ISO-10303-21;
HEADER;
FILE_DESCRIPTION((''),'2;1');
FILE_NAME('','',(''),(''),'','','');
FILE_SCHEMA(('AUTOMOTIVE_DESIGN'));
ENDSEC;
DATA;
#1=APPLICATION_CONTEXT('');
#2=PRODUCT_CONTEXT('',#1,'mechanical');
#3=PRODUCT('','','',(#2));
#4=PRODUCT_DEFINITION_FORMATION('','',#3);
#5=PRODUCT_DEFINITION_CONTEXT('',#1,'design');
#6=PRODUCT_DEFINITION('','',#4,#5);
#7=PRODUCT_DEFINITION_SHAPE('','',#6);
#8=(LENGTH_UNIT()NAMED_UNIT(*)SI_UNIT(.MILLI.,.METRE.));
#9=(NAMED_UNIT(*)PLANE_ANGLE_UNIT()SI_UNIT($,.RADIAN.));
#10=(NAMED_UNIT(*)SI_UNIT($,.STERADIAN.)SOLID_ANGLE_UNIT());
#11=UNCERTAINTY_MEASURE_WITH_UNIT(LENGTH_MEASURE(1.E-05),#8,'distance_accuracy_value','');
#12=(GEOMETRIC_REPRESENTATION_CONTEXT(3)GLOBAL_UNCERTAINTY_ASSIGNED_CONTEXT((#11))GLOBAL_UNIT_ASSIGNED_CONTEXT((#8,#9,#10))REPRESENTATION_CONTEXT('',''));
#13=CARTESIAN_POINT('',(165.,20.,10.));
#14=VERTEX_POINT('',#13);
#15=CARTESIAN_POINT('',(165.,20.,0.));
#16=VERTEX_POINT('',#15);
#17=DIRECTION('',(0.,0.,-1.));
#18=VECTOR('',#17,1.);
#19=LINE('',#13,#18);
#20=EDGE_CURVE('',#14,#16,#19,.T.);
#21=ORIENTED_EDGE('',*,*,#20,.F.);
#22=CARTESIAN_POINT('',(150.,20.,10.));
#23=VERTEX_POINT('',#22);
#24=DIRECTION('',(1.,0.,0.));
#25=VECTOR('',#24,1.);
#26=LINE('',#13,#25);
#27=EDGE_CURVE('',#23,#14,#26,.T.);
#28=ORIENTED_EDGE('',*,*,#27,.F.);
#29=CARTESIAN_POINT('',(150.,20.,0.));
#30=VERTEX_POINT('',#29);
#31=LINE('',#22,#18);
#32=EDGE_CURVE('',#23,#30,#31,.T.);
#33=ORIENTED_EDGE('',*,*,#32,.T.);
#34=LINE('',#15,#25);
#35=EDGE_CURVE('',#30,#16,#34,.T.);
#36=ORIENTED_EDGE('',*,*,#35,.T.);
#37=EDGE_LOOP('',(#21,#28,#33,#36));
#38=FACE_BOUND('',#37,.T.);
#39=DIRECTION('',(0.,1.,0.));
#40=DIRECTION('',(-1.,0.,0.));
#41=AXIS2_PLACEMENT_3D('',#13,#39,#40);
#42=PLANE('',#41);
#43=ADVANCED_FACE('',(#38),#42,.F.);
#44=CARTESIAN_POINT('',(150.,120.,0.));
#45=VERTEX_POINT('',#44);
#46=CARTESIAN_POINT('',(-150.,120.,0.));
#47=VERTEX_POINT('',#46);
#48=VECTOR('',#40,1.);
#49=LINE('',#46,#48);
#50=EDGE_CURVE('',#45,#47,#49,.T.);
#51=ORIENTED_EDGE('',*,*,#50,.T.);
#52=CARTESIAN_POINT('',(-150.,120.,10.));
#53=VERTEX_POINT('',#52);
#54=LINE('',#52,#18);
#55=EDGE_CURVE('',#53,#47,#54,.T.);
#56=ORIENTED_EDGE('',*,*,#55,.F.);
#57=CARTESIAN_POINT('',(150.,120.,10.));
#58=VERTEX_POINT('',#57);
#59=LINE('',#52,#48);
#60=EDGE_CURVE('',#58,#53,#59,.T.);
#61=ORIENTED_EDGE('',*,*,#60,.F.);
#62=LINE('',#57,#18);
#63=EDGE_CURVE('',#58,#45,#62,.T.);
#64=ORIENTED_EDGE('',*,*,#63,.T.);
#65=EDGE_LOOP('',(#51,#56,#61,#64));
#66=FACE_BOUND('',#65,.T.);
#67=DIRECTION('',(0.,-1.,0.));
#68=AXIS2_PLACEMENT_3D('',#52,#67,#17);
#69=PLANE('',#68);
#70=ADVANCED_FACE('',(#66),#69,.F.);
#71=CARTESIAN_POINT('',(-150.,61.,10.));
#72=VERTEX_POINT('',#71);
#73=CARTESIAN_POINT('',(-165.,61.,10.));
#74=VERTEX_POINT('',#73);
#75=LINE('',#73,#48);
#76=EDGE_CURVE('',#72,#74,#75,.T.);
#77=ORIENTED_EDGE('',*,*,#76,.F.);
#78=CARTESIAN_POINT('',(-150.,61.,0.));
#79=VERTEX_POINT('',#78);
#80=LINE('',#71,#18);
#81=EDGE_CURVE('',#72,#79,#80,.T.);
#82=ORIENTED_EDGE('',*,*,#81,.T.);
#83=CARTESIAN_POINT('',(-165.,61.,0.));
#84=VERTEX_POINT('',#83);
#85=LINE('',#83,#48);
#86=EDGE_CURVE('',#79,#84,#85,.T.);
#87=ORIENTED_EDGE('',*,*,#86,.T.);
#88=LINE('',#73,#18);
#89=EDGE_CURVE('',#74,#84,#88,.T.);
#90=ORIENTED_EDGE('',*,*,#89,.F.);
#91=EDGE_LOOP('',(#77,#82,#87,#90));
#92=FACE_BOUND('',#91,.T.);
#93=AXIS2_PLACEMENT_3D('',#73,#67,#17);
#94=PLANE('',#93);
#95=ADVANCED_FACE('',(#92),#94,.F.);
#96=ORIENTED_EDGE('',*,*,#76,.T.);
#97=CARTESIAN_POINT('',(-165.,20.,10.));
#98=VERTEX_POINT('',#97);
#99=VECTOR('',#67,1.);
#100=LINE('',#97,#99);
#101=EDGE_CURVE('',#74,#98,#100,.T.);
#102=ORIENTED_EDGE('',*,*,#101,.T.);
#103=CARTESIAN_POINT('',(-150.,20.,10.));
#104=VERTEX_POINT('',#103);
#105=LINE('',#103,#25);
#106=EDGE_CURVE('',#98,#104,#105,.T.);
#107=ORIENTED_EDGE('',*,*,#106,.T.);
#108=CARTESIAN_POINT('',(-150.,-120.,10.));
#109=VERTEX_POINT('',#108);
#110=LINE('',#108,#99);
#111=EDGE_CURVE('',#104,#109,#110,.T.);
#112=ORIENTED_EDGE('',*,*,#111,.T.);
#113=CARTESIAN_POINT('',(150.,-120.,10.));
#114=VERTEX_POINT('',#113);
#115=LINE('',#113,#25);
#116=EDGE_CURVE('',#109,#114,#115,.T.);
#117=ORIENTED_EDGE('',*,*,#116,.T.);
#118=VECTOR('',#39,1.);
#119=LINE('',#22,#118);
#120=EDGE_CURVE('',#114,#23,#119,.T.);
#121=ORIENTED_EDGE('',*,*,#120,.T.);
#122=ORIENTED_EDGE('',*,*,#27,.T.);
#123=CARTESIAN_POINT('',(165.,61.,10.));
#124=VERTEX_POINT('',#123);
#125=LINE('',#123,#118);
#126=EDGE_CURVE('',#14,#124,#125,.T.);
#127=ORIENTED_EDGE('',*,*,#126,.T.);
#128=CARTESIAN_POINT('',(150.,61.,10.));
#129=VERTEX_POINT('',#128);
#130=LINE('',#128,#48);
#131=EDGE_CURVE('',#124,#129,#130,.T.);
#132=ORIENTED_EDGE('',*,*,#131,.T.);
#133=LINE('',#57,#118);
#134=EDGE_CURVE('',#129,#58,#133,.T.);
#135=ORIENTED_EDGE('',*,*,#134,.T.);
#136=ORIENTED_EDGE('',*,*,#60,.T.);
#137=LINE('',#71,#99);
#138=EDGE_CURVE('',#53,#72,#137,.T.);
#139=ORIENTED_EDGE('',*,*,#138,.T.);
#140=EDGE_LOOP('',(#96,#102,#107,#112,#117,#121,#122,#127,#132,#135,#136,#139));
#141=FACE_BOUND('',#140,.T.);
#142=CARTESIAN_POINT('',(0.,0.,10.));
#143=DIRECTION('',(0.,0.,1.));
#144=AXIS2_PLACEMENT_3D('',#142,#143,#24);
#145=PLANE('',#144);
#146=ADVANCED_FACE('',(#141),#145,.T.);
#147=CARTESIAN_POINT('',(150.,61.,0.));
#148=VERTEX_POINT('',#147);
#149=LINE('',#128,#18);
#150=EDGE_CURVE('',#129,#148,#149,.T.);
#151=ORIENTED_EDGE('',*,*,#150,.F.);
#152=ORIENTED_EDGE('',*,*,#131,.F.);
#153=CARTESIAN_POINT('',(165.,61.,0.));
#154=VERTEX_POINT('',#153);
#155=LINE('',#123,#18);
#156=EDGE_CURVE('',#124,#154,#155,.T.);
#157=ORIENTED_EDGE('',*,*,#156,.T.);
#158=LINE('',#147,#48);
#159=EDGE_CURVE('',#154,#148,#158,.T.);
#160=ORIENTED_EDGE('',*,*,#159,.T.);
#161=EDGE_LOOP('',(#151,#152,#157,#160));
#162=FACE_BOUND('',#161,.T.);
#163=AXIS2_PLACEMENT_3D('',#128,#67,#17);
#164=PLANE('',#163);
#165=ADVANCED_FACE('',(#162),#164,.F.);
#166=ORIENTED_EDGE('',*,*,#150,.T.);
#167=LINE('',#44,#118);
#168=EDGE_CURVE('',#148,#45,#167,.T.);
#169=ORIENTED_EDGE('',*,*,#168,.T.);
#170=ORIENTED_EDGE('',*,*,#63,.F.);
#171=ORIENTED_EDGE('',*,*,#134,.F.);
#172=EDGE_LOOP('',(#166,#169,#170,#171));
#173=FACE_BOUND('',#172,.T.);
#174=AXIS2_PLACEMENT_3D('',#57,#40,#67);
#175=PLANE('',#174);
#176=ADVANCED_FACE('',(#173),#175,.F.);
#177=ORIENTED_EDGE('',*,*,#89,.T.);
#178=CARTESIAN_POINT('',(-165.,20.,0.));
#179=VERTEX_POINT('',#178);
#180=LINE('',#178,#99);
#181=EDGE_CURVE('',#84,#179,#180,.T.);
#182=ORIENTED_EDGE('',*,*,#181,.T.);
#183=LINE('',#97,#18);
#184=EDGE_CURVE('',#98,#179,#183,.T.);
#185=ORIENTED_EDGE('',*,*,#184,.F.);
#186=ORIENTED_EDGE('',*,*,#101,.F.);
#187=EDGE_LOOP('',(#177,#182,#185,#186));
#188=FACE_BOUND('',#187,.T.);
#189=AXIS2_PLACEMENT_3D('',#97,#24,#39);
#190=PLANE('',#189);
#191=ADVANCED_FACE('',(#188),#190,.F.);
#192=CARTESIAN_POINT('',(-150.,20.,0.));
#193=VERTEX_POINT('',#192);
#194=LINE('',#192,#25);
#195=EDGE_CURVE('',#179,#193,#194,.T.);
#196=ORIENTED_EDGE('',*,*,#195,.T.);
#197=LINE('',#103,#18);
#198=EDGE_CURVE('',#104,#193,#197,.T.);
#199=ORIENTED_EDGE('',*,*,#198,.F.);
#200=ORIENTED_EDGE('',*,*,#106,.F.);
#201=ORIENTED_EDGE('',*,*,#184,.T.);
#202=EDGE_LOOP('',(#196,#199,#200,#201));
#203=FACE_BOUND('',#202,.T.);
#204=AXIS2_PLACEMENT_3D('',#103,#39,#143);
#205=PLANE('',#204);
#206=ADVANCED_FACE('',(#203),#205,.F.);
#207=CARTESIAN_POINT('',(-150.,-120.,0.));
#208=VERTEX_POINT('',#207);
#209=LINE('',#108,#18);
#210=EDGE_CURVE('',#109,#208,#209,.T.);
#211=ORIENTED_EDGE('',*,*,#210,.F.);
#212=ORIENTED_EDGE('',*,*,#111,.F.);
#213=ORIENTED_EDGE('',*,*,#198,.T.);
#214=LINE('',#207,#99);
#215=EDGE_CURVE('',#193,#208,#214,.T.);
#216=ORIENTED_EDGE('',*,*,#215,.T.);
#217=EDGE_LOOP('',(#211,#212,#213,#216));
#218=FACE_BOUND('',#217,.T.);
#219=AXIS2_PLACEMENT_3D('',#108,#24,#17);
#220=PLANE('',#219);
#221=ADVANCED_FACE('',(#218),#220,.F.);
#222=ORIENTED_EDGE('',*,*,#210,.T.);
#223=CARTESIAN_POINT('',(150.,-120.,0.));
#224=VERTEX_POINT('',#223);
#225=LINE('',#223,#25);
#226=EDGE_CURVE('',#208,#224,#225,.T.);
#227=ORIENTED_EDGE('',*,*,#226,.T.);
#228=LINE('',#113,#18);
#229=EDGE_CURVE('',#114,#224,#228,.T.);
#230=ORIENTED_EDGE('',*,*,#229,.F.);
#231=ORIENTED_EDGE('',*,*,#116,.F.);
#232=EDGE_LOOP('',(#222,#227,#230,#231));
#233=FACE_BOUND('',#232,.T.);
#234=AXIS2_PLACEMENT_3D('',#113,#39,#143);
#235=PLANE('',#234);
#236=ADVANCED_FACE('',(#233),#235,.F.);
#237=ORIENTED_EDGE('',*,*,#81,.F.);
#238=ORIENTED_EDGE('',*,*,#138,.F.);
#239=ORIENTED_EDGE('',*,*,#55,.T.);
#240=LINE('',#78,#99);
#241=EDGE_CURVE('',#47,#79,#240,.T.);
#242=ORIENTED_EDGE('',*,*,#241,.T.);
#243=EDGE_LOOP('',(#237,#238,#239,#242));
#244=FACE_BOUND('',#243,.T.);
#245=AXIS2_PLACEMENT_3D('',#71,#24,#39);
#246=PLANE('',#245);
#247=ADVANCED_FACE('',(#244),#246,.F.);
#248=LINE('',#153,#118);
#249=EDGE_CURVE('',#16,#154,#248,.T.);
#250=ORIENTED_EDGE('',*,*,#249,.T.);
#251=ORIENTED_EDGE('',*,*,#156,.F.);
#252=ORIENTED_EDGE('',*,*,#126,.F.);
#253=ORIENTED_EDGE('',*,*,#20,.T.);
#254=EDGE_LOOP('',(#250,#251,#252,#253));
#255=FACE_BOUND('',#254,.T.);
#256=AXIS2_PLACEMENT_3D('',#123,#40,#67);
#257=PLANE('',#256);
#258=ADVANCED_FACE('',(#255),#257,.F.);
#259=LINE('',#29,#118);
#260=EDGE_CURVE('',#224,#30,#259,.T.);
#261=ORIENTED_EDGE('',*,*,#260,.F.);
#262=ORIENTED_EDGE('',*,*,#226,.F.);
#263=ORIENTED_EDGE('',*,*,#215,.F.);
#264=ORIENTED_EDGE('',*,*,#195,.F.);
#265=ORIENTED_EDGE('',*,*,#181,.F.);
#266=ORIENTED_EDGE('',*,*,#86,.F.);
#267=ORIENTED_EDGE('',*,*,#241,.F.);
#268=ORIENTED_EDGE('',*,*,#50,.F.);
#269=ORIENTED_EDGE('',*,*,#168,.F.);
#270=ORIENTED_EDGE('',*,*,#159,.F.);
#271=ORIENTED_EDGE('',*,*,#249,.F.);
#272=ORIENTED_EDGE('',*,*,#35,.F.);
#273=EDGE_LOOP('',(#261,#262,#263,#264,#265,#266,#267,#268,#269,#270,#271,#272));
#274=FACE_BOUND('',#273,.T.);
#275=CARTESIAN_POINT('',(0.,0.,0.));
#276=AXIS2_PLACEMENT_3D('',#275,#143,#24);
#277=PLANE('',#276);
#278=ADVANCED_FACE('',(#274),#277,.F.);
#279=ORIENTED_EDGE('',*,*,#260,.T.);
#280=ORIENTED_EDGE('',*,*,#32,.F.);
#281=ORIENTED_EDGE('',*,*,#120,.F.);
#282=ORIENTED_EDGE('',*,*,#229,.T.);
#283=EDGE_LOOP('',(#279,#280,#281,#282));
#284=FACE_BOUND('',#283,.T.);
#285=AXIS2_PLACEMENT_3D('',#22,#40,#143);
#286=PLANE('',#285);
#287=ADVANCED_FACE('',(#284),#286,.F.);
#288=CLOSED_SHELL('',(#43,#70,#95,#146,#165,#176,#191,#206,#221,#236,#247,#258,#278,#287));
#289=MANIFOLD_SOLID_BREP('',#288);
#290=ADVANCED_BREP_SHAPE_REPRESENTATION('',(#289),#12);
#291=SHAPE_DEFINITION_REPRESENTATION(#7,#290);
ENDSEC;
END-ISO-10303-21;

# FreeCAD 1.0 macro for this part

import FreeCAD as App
import Part
import Sketcher

V = App.Vector


def add_polygon(sketch, points):
    """Adds a closed chain of lines whose ends are joined by coincident constraints."""
    first, n = sketch.GeometryCount, len(points)
    for a, b in zip(points, points[1:] + points[:1]):
        sketch.addGeometry(Part.LineSegment(App.Vector(*a, 0), App.Vector(*b, 0)), False)
    for i in range(n):
        sketch.addConstraint(Sketcher.Constraint("Coincident", first + i, 2, first + (i + 1) % n, 1))

doc = App.newDocument("Part")
params = doc.addObject("Spreadsheet::Sheet", "Params")
for row, (alias, value) in enumerate([
    ("sketch1_width", "300 mm"),
    ("sketch1_width2", "15 mm"),
    ("sketch1_height", "140 mm"),
    ("sketch1_height2", "41 mm"),
    ("sketch1_height3", "59 mm"),
    ("pad1_length", "10 mm"),
], start=1):
    params.set(f"A{row}", alias)
    params.set(f"B{row}", "=" + value)
    params.setAlias(f"B{row}", alias)

body = doc.addObject("PartDesign::Body", "Body")

# Sketch on XY plane
sketch1 = body.newObject("Sketcher::SketchObject", "Sketch")
sketch1.AttachmentSupport = (doc.getObject("XY_Plane"), [""])
sketch1.MapMode = "FlatFace"
add_polygon(sketch1, [(-150, 20), (-150, -120), (150, -120), (150, 20), (165, 20), (165, 61), (150, 61), (150, 120), (-150, 120), (-150, 61), (-165, 61), (-165, 20)])  # lines 0-11
sketch1.addConstraint([
    Sketcher.Constraint("Vertical", 0),
    Sketcher.Constraint("Horizontal", 1),
    Sketcher.Constraint("Vertical", 2),
    Sketcher.Constraint("Horizontal", 3),
    Sketcher.Constraint("Vertical", 4),
    Sketcher.Constraint("Horizontal", 5),
    Sketcher.Constraint("Vertical", 6),
    Sketcher.Constraint("Horizontal", 7),
    Sketcher.Constraint("Vertical", 8),
    Sketcher.Constraint("Horizontal", 9),
    Sketcher.Constraint("Vertical", 10),
    Sketcher.Constraint("Horizontal", 11),
    Sketcher.Constraint("Symmetric", 0, 2, 6, 2, -1, 1),
    Sketcher.Constraint("Symmetric", 5, 2, 8, 2, -2),
    Sketcher.Constraint("Symmetric", 3, 2, 10, 2, -2),
    Sketcher.Constraint("Vertical", 2, 2, 5, 2),
    Sketcher.Constraint("DistanceX", 1, 1, 1, 2, 300.0),
    Sketcher.Constraint("DistanceX", 3, 1, 3, 2, 15.0),
    Sketcher.Constraint("DistanceY", 0, 2, 0, 1, 140.0),
    Sketcher.Constraint("DistanceY", 4, 1, 4, 2, 41.0),
    Sketcher.Constraint("DistanceY", 6, 1, 6, 2, 59.0),
])
sketch1.setExpression("Constraints[28]", "Params.sketch1_width")
sketch1.setExpression("Constraints[29]", "Params.sketch1_width2")
sketch1.setExpression("Constraints[30]", "Params.sketch1_height")
sketch1.setExpression("Constraints[31]", "Params.sketch1_height2")
sketch1.setExpression("Constraints[32]", "Params.sketch1_height3")
pad1 = body.newObject("PartDesign::Pad", "Pad")
pad1.Profile = sketch1
pad1.setExpression("Length", "Params.pad1_length")

doc.recompute()
